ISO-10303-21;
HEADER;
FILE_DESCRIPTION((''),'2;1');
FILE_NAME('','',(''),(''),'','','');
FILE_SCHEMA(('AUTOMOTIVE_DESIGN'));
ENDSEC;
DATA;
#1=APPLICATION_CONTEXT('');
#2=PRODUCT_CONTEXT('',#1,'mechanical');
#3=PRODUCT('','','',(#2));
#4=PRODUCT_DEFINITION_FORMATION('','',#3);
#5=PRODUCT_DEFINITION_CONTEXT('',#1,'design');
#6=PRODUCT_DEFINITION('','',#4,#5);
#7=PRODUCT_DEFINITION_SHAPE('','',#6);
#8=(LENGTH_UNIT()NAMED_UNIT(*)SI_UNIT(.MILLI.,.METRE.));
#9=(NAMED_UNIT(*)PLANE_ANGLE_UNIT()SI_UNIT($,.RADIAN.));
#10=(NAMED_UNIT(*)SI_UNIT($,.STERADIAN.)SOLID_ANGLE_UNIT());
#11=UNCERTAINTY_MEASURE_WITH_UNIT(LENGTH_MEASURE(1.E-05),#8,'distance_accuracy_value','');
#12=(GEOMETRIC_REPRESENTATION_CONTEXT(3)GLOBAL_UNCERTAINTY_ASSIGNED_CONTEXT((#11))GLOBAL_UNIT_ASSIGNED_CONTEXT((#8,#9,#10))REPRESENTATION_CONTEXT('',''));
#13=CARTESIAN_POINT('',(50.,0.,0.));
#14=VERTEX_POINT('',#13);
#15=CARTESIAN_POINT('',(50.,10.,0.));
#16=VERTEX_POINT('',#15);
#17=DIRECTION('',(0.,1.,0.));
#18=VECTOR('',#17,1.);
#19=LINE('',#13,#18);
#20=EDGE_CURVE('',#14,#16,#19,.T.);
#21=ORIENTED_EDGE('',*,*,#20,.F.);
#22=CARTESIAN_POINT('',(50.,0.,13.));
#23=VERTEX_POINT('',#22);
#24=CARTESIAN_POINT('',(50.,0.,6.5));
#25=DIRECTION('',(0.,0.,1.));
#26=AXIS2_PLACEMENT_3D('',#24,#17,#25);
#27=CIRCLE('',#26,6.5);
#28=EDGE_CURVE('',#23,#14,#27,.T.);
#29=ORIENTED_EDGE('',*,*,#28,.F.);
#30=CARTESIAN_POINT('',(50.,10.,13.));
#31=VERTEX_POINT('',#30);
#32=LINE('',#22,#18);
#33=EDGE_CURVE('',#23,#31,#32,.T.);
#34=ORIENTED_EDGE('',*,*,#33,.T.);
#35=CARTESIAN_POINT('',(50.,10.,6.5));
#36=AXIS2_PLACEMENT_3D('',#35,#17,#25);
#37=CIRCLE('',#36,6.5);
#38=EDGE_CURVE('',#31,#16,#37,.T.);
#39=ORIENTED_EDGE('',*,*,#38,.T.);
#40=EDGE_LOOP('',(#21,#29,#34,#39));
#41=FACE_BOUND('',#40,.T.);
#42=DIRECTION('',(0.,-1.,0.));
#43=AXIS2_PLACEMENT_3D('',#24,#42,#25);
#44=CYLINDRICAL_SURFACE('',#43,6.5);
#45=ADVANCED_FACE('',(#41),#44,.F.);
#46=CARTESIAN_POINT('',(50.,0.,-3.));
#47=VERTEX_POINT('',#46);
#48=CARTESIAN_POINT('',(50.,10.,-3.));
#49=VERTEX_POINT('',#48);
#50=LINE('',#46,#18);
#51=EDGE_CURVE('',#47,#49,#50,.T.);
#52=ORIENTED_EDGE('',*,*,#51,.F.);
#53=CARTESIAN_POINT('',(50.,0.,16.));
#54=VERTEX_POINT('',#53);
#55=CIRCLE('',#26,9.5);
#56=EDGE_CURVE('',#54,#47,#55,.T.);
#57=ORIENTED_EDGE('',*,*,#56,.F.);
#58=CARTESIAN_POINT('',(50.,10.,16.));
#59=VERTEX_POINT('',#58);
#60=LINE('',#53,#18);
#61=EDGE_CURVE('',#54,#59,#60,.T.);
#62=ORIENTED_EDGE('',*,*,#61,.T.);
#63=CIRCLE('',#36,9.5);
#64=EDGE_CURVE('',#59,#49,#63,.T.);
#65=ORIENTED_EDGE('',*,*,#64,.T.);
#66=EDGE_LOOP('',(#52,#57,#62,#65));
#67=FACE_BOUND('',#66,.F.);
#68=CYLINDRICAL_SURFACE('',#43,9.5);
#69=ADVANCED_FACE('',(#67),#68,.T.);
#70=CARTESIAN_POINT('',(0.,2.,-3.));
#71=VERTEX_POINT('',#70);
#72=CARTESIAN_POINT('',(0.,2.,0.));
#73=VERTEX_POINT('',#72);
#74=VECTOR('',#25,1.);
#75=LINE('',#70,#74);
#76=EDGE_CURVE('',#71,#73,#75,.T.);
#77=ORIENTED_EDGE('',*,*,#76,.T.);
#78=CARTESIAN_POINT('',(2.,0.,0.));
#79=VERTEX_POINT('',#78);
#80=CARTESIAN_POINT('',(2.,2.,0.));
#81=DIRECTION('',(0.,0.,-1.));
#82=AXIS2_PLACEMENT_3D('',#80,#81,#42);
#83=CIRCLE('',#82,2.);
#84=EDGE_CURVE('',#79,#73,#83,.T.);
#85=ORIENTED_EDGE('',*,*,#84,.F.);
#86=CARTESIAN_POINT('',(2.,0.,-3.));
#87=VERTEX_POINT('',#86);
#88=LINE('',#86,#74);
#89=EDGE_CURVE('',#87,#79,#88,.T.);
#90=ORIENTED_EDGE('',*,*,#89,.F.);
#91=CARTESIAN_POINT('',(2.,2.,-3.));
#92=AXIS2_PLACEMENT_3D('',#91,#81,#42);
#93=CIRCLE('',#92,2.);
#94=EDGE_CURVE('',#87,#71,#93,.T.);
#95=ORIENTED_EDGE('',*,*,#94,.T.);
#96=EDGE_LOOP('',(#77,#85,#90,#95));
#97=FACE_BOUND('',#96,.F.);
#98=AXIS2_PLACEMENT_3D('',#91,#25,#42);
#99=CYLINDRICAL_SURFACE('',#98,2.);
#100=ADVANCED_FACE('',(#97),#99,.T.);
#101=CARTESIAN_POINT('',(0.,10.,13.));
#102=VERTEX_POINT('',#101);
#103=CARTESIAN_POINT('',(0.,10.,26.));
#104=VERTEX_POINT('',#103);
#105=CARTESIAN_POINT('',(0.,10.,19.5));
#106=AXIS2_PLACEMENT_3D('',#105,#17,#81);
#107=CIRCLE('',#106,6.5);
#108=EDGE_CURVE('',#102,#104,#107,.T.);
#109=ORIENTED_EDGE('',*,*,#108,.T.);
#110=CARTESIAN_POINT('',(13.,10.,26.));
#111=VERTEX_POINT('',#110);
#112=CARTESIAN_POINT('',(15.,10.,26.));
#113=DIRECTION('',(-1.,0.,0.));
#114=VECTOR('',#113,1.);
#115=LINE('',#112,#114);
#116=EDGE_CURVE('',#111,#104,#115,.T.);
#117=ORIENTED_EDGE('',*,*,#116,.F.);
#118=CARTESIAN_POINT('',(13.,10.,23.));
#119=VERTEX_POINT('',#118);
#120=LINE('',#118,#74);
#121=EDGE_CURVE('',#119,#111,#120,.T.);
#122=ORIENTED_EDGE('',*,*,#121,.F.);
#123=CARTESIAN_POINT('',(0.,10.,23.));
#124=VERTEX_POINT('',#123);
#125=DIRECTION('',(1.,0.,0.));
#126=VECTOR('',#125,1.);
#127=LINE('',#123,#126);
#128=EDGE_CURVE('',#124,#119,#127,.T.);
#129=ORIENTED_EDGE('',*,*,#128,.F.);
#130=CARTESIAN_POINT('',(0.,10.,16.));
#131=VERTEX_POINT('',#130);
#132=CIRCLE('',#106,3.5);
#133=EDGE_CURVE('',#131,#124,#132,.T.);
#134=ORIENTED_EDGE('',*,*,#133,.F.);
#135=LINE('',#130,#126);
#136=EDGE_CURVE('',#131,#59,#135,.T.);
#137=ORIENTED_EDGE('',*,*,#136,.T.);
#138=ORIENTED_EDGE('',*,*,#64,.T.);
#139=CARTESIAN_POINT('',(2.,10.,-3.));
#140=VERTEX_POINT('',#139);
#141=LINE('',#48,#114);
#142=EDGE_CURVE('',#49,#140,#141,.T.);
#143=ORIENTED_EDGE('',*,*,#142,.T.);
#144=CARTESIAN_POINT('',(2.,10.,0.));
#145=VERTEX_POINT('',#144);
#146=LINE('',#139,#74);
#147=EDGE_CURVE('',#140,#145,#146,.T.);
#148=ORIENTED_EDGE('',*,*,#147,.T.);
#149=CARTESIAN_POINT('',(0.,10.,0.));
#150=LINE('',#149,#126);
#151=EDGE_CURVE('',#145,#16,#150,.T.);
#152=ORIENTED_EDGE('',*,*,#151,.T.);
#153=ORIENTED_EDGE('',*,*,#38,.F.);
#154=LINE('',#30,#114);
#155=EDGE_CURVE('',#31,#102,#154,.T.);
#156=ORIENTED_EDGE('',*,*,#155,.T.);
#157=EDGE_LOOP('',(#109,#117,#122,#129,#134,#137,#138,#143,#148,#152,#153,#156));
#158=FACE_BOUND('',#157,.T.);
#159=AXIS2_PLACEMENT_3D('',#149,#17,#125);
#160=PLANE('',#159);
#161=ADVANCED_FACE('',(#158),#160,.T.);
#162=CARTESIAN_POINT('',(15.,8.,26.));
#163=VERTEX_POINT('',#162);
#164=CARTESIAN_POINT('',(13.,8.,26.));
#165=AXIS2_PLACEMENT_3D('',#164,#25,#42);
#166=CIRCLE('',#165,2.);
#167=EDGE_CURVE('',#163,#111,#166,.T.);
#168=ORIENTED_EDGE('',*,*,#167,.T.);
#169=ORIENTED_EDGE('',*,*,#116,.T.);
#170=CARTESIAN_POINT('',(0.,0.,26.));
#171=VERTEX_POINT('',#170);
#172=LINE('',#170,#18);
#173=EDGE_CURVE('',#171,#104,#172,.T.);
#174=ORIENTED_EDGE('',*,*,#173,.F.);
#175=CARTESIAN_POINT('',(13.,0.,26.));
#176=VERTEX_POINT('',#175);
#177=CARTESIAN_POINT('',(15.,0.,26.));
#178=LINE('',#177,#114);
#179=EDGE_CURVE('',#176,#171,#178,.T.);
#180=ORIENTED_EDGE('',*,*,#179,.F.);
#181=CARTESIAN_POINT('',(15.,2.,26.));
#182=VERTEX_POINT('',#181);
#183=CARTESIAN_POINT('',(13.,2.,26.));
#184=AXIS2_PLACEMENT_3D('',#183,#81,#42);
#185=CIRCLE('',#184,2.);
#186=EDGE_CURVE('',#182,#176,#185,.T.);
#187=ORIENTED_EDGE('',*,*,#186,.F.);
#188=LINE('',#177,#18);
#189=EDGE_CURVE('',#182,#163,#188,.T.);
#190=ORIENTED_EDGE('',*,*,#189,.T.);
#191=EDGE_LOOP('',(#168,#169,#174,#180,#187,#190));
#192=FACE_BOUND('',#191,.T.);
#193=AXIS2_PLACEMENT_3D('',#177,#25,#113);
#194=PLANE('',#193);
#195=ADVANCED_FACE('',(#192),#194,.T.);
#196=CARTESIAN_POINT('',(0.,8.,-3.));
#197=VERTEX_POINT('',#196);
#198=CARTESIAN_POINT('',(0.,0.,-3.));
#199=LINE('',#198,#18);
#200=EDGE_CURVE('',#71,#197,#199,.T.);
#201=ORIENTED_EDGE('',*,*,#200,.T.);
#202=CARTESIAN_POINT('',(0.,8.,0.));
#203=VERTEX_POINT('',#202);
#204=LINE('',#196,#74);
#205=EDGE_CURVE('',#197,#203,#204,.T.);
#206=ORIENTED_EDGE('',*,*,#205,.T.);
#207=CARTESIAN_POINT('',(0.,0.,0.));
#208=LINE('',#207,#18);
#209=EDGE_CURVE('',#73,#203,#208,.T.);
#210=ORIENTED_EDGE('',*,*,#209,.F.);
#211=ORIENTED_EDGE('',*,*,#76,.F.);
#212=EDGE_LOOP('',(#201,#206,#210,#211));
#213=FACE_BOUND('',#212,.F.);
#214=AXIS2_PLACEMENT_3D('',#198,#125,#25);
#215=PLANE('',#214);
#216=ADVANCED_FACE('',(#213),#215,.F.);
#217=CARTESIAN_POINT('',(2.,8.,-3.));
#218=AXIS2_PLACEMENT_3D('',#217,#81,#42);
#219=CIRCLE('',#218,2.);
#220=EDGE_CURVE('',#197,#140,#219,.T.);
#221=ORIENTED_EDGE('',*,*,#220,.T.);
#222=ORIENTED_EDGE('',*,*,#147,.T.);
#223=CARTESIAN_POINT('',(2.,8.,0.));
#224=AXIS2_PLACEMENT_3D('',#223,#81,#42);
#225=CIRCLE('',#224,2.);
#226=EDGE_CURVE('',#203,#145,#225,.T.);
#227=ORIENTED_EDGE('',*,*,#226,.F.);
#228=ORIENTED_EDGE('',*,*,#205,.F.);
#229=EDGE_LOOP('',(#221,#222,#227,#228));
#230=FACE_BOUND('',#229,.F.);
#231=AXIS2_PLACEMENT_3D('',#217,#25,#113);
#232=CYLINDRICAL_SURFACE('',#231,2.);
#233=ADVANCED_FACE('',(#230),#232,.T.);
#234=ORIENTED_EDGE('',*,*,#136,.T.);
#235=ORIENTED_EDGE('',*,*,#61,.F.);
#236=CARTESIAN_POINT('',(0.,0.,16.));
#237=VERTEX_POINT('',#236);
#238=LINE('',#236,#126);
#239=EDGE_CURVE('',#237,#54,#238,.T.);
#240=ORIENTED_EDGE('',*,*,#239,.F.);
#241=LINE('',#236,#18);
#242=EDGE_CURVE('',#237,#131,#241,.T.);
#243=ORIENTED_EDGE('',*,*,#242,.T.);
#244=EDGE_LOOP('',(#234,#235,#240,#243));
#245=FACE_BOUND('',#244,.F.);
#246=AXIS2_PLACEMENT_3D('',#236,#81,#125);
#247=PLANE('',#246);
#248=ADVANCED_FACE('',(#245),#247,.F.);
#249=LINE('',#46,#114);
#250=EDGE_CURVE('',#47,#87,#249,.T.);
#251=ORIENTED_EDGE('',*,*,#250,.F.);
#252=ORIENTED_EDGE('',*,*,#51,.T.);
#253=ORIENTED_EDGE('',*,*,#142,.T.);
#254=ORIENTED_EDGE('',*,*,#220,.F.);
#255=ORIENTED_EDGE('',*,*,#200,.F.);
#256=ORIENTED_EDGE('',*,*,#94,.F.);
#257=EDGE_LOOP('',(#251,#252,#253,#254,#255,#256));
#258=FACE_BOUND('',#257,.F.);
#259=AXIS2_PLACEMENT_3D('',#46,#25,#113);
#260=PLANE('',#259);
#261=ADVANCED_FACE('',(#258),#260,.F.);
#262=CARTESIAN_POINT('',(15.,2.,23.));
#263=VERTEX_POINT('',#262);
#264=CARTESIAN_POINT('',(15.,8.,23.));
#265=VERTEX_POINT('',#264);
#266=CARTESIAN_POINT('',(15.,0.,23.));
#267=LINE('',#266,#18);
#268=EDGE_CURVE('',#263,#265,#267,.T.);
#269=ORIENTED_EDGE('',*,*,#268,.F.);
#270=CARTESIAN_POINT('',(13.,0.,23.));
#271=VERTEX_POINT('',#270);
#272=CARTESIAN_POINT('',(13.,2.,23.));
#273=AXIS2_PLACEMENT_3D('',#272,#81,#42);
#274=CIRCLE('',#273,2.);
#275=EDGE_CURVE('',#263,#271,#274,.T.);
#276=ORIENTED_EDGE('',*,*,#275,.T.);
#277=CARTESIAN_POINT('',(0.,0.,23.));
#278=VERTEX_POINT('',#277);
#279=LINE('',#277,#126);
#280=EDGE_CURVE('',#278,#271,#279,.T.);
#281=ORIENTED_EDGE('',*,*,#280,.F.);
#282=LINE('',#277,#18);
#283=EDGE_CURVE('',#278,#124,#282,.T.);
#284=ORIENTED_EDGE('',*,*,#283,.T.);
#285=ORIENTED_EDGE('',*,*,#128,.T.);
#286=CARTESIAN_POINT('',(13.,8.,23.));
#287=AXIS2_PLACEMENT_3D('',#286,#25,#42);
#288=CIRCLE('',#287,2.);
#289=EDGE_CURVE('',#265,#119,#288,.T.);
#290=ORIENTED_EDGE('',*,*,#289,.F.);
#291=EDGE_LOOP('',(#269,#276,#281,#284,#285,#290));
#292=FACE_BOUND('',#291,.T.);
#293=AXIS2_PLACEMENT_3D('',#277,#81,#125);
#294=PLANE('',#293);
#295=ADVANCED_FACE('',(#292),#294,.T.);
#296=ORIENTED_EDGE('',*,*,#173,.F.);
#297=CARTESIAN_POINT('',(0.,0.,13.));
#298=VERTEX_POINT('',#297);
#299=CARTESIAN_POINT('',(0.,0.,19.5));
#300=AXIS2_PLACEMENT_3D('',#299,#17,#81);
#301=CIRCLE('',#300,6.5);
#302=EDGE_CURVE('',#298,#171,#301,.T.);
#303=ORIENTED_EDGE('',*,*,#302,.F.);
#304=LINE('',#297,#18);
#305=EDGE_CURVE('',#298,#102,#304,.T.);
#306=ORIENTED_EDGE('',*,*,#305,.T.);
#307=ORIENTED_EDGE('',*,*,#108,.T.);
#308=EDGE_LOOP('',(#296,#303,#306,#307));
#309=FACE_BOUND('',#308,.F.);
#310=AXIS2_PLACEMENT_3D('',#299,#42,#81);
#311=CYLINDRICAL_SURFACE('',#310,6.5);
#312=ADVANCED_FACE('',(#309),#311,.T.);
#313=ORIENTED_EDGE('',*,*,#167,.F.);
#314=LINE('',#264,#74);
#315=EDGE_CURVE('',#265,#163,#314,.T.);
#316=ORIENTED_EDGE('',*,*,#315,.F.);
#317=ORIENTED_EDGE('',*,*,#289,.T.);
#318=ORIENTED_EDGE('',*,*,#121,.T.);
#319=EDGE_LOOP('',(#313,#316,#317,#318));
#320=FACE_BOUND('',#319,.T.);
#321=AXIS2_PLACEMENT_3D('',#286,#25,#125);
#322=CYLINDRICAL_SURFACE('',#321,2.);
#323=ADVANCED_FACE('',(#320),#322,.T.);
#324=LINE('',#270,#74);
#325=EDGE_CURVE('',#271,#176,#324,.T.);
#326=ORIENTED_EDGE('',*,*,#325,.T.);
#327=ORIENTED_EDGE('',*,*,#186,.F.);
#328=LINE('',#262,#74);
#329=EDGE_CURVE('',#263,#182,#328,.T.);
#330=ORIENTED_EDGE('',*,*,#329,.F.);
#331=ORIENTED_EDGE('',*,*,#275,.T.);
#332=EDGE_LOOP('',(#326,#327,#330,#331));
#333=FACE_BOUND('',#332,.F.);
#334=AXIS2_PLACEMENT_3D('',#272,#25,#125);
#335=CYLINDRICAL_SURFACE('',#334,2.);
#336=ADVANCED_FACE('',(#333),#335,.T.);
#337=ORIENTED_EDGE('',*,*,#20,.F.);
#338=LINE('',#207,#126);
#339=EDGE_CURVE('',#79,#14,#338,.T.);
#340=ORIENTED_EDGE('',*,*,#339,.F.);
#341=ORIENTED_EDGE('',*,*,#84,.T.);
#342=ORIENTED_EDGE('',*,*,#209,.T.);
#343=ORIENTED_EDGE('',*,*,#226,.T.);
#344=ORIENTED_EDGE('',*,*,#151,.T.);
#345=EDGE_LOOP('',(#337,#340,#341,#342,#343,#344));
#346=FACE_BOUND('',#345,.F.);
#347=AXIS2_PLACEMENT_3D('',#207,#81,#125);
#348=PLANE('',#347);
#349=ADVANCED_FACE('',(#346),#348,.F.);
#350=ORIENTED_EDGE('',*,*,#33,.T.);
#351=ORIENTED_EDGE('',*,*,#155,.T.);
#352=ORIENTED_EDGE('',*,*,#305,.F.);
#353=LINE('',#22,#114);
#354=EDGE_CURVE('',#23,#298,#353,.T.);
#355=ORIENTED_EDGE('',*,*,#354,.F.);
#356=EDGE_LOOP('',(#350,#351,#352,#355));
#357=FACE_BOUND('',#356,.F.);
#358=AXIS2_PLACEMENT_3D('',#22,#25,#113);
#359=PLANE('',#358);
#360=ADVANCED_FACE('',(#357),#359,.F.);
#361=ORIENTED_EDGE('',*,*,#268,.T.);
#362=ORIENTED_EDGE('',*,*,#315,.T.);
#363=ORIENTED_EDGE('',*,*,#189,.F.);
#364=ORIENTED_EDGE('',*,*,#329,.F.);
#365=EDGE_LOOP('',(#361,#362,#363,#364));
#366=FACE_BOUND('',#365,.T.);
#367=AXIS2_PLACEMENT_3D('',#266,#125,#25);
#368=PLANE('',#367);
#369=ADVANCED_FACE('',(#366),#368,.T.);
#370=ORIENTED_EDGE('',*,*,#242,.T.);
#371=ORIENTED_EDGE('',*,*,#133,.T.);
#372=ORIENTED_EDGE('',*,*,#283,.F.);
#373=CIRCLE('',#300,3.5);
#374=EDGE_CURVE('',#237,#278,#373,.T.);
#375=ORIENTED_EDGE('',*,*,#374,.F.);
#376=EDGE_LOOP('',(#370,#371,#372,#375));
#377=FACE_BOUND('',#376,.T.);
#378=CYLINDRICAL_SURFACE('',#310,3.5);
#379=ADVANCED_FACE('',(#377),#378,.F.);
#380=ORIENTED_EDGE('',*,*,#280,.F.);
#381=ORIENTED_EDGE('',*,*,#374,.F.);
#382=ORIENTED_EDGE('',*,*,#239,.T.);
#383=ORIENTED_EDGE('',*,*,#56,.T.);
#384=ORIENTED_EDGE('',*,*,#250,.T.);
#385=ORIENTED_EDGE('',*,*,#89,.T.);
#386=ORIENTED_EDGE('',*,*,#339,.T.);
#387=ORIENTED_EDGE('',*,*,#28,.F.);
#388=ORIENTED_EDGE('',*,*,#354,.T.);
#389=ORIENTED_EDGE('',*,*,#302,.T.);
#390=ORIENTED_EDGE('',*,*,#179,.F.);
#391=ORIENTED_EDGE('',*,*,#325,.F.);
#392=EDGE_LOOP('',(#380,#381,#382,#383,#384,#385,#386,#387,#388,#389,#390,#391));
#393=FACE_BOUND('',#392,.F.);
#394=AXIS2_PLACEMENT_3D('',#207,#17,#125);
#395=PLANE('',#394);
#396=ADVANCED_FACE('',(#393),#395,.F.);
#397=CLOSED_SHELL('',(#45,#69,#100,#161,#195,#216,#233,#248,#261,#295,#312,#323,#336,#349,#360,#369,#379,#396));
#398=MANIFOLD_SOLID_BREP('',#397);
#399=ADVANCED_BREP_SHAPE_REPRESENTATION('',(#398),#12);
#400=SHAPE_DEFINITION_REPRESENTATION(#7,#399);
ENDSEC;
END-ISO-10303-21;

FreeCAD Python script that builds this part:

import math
import FreeCAD as App
import Part
import Sketcher

V = App.Vector
Q = App.Units.Quantity


def edges_at(feature, points):
    """Names of the edges that pass closest to the given points."""
    edges = feature.Shape.Edges
    near = lambda p: min(range(len(edges)), key=lambda i: edges[i].distToShape(Part.Vertex(*p))[0])
    return sorted({f"Edge{near(p) + 1}" for p in points})

doc = App.newDocument("Part")
body = doc.addObject("PartDesign::Body", "Body")

# Sketch on XZ plane
sketch1 = body.newObject("Sketcher::SketchObject", "Sketch")
sketch1.AttachmentSupport = (doc.getObject("XZ_Plane"), [""])
sketch1.MapMode = "FlatFace"
sketch1.addGeometry([
    Part.LineSegment(V(0, -3, 0), V(0, 0, 0)),  # 0
    Part.LineSegment(V(0, 0, 0), V(50, 0, 0)),  # 1
    Part.ArcOfCircle(Part.Circle(V(50, 6.5, 0), V(0, 0, 1), 6.5), math.radians(-90), math.radians(90)),  # 2
    Part.LineSegment(V(50, 13, 0), V(0, 13, 0)),  # 3
    Part.ArcOfCircle(Part.Circle(V(0, 19.5, 0), V(0, 0, 1), 6.5), math.radians(90), math.radians(270)),  # 4
    Part.LineSegment(V(0, 26, 0), V(15, 26, 0)),  # 5
    Part.LineSegment(V(15, 26, 0), V(15, 23, 0)),  # 6
    Part.LineSegment(V(15, 23, 0), V(0, 23, 0)),  # 7
    Part.ArcOfCircle(Part.Circle(V(0, 19.5, 0), V(0, 0, 1), 3.5), math.radians(90), math.radians(270)),  # 8
    Part.LineSegment(V(0, 16, 0), V(50, 16, 0)),  # 9
    Part.ArcOfCircle(Part.Circle(V(50, 6.5, 0), V(0, 0, 1), 9.5), math.radians(-90), math.radians(90)),  # 10
    Part.LineSegment(V(50, -3, 0), V(0, -3, 0)),  # 11
], False)
sketch1.addConstraint([
    Sketcher.Constraint("Coincident", 0, 2, 1, 1),
    Sketcher.Constraint("Tangent", 1, 2, 2, 1),
    Sketcher.Constraint("Tangent", 2, 2, 3, 1),
    Sketcher.Constraint("Tangent", 3, 2, 4, 2),
    Sketcher.Constraint("Tangent", 4, 1, 5, 1),
    Sketcher.Constraint("Coincident", 5, 2, 6, 1),
    Sketcher.Constraint("Coincident", 6, 2, 7, 1),
    Sketcher.Constraint("Tangent", 7, 2, 8, 1),
    Sketcher.Constraint("Tangent", 8, 2, 9, 1),
    Sketcher.Constraint("Tangent", 9, 2, 10, 2),
    Sketcher.Constraint("Tangent", 10, 1, 11, 1),
    Sketcher.Constraint("Coincident", 11, 2, 0, 1),
    Sketcher.Constraint("Vertical", 0),
    Sketcher.Constraint("Horizontal", 1),
    Sketcher.Constraint("Horizontal", 3),
    Sketcher.Constraint("Horizontal", 5),
    Sketcher.Constraint("Vertical", 6),
    Sketcher.Constraint("Horizontal", 7),
    Sketcher.Constraint("Horizontal", 9),
    Sketcher.Constraint("Horizontal", 11),
    Sketcher.Constraint("Coincident", 0, 2, -1, 1),
    Sketcher.Constraint("Coincident", 8, 3, 4, 3),
    Sketcher.Constraint("Coincident", 10, 3, 2, 3),
    Sketcher.Constraint("Equal", 2, 4),
    Sketcher.Constraint("PointOnObject", 4, 3, -2),
    Sketcher.Constraint("Radius", 2, Q("6.5 mm")),
    Sketcher.Constraint("Radius", 8, Q("3.5 mm")),
    Sketcher.Constraint("DistanceX", 1, 1, 1, 2, Q("50 mm")),
    Sketcher.Constraint("DistanceX", 5, 1, 5, 2, Q("15 mm")),
])
pad1 = body.newObject("PartDesign::Pad", "Pad")
pad1.Profile = sketch1
pad1.Length = 10
pad1.Reversed = True
doc.recompute()

fillet = body.newObject("PartDesign::Fillet", "Fillet")
fillet.Base = (pad1, edges_at(pad1, [(15, 0, 24.5)]))
fillet.Radius = 2
doc.recompute()

fillet2 = body.newObject("PartDesign::Fillet", "Fillet001")
fillet2.Base = (fillet, edges_at(fillet, [(15, 10, 24.5)]))
fillet2.Radius = 2
doc.recompute()

fillet3 = body.newObject("PartDesign::Fillet", "Fillet002")
fillet3.Base = (fillet2, edges_at(fillet2, [(0, 0, -1.5)]))
fillet3.Radius = 2
doc.recompute()

fillet4 = body.newObject("PartDesign::Fillet", "Fillet003")
fillet4.Base = (fillet3, edges_at(fillet3, [(0, 10, -1.5)]))
fillet4.Radius = 2

doc.recompute()
